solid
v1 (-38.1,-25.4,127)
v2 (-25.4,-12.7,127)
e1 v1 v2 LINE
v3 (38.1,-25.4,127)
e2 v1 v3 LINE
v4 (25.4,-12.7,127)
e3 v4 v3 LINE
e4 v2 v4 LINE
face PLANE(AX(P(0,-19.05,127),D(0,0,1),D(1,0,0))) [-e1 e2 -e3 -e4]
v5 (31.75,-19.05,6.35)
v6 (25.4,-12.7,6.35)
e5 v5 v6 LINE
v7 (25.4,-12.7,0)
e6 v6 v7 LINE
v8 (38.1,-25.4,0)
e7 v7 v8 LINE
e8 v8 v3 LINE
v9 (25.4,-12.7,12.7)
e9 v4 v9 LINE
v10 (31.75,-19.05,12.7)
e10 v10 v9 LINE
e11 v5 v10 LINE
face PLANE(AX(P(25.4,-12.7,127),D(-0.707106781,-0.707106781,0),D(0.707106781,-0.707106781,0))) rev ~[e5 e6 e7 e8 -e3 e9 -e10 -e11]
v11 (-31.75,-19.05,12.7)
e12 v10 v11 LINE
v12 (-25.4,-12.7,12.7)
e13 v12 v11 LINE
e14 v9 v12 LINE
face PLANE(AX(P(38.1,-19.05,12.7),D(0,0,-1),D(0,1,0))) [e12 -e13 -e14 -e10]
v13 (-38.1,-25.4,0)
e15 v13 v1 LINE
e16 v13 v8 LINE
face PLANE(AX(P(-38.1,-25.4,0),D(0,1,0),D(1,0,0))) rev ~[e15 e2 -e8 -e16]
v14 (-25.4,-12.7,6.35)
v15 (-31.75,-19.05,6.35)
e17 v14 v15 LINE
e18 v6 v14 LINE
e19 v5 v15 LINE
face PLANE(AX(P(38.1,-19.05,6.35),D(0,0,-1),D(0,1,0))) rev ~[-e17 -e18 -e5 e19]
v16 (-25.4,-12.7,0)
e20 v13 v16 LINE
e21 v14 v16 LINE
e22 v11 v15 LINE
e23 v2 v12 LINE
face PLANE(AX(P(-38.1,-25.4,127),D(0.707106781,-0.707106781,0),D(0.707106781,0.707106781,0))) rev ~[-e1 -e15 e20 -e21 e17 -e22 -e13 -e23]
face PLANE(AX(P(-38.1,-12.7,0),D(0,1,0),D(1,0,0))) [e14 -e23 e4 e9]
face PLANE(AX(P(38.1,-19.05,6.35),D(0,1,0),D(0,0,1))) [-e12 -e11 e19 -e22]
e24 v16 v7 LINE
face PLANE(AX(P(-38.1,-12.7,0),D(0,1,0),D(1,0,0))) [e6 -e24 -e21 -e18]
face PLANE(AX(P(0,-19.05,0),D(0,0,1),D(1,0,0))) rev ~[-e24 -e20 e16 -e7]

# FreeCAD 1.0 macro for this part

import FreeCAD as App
import Part
import Sketcher
Q = App.Units.Quantity


def add_polygon(sketch, points):
    """Adds a closed chain of lines whose ends are joined by coincident constraints."""
    first, n = sketch.GeometryCount, len(points)
    for a, b in zip(points, points[1:] + points[:1]):
        sketch.addGeometry(Part.LineSegment(App.Vector(*a, 0), App.Vector(*b, 0)), False)
    for i in range(n):
        sketch.addConstraint(Sketcher.Constraint("Coincident", first + i, 2, first + (i + 1) % n, 1))

doc = App.newDocument("Part")
params = doc.addObject("Spreadsheet::Sheet", "Params")
for row, (alias, value) in enumerate([
    ("sketch1_width", "3 in"),
    ("sketch1_height", "0.5 in"),
    ("pad1_length", "5 in"),
    ("sketch2_width", "0.25 in"),
    ("sketch3_width", "0.5 in"),
], start=1):
    params.set(f"A{row}", alias)
    params.set(f"B{row}", "=" + value)
    params.setAlias(f"B{row}", alias)

body = doc.addObject("PartDesign::Body", "Body")

# Sketch on XY plane
sketch1 = body.newObject("Sketcher::SketchObject", "Sketch")
sketch1.AttachmentSupport = (doc.getObject("XY_Plane"), [""])
sketch1.MapMode = "FlatFace"
add_polygon(sketch1, [(-38, -13), (-38, -25), (38, -25), (38, -13)])  # lines 0-3
sketch1.addConstraint([
    Sketcher.Constraint("Vertical", 0),
    Sketcher.Constraint("Horizontal", 1),
    Sketcher.Constraint("Vertical", 2),
    Sketcher.Constraint("Horizontal", 3),
    Sketcher.Constraint("DistanceX", 1, 1, 1, 2, Q("3 in")),
    Sketcher.Constraint("DistanceY", 0, 2, 0, 1, Q("0.5 in")),
    Sketcher.Constraint("DistanceY", 0, 2, -1, 1, Q("1 in")),
    Sketcher.Constraint("DistanceX", 0, 2, -1, 1, Q("1.5 in")),
])
sketch1.setExpression("Constraints[8]", "Params.sketch1_width")
sketch1.setExpression("Constraints[9]", "Params.sketch1_height")
pad1 = body.newObject("PartDesign::Pad", "Pad")
pad1.Profile = sketch1
pad1.setExpression("Length", "Params.pad1_length")

# Sketch on YZ plane
sketch2 = body.newObject("Sketcher::SketchObject", "Sketch001")
sketch2.AttachmentSupport = (doc.getObject("YZ_Plane"), [""])
sketch2.MapMode = "FlatFace"
sketch2.AttachmentOffset = App.Placement(App.Vector(0, 0, 1.5 * 25.4), App.Rotation())
add_polygon(sketch2, [(-19, 13), (-19, 6), (-13, 6), (-13, 13)])  # lines 0-3
sketch2.addConstraint([
    Sketcher.Constraint("Vertical", 0),
    Sketcher.Constraint("Horizontal", 1),
    Sketcher.Constraint("Vertical", 2),
    Sketcher.Constraint("Horizontal", 3),
    Sketcher.Constraint("Equal", 3, 0),
    Sketcher.Constraint("DistanceX", 1, 1, 1, 2, Q("0.25 in")),
    Sketcher.Constraint("DistanceX", 1, 2, -1, 1, Q("0.5 in")),
    Sketcher.Constraint("DistanceY", -1, 1, 2, 2, Q("0.5 in")),
])
sketch2.setExpression("Constraints[9]", "Params.sketch2_width")
pocket1 = body.newObject("PartDesign::Pocket", "Pocket")
pocket1.Profile = sketch2
pocket1.Type = "ThroughAll"

# Sketch on XY plane
sketch3 = body.newObject("Sketcher::SketchObject", "Sketch002")
sketch3.AttachmentSupport = (doc.getObject("XY_Plane"), [""])
sketch3.MapMode = "FlatFace"
sketch3.AttachmentOffset = App.Placement(App.Vector(0, 0, 5 * 25.4), App.Rotation())
add_polygon(sketch3, [(-38, -13), (-38, -25), (-25, -13)])  # lines 0-2
add_polygon(sketch3, [(25, -13), (38, -25), (38, -13)])  # lines 3-5
sketch3.addConstraint([
    Sketcher.Constraint("Vertical", 0),
    Sketcher.Constraint("Horizontal", 2),
    Sketcher.Constraint("Vertical", 4),
    Sketcher.Constraint("Horizontal", 5),
    Sketcher.Constraint("Symmetric", 0, 2, 3, 2, -2),
    Sketcher.Constraint("Symmetric", 1, 2, 5, 2, -2),
    Sketcher.Constraint("Perpendicular", 1, 3),
    Sketcher.Constraint("DistanceX", 2, 2, 2, 1, Q("0.5 in")),
    Sketcher.Constraint("DistanceY", 0, 2, -1, 1, Q("1 in")),
    Sketcher.Constraint("DistanceX", 1, 2, -1, 1, Q("1 in")),
])
sketch3.setExpression("Constraints[13]", "Params.sketch3_width")
pocket2 = body.newObject("PartDesign::Pocket", "Pocket001")
pocket2.Profile = sketch3
pocket2.Type = "ThroughAll"

doc.recompute()
